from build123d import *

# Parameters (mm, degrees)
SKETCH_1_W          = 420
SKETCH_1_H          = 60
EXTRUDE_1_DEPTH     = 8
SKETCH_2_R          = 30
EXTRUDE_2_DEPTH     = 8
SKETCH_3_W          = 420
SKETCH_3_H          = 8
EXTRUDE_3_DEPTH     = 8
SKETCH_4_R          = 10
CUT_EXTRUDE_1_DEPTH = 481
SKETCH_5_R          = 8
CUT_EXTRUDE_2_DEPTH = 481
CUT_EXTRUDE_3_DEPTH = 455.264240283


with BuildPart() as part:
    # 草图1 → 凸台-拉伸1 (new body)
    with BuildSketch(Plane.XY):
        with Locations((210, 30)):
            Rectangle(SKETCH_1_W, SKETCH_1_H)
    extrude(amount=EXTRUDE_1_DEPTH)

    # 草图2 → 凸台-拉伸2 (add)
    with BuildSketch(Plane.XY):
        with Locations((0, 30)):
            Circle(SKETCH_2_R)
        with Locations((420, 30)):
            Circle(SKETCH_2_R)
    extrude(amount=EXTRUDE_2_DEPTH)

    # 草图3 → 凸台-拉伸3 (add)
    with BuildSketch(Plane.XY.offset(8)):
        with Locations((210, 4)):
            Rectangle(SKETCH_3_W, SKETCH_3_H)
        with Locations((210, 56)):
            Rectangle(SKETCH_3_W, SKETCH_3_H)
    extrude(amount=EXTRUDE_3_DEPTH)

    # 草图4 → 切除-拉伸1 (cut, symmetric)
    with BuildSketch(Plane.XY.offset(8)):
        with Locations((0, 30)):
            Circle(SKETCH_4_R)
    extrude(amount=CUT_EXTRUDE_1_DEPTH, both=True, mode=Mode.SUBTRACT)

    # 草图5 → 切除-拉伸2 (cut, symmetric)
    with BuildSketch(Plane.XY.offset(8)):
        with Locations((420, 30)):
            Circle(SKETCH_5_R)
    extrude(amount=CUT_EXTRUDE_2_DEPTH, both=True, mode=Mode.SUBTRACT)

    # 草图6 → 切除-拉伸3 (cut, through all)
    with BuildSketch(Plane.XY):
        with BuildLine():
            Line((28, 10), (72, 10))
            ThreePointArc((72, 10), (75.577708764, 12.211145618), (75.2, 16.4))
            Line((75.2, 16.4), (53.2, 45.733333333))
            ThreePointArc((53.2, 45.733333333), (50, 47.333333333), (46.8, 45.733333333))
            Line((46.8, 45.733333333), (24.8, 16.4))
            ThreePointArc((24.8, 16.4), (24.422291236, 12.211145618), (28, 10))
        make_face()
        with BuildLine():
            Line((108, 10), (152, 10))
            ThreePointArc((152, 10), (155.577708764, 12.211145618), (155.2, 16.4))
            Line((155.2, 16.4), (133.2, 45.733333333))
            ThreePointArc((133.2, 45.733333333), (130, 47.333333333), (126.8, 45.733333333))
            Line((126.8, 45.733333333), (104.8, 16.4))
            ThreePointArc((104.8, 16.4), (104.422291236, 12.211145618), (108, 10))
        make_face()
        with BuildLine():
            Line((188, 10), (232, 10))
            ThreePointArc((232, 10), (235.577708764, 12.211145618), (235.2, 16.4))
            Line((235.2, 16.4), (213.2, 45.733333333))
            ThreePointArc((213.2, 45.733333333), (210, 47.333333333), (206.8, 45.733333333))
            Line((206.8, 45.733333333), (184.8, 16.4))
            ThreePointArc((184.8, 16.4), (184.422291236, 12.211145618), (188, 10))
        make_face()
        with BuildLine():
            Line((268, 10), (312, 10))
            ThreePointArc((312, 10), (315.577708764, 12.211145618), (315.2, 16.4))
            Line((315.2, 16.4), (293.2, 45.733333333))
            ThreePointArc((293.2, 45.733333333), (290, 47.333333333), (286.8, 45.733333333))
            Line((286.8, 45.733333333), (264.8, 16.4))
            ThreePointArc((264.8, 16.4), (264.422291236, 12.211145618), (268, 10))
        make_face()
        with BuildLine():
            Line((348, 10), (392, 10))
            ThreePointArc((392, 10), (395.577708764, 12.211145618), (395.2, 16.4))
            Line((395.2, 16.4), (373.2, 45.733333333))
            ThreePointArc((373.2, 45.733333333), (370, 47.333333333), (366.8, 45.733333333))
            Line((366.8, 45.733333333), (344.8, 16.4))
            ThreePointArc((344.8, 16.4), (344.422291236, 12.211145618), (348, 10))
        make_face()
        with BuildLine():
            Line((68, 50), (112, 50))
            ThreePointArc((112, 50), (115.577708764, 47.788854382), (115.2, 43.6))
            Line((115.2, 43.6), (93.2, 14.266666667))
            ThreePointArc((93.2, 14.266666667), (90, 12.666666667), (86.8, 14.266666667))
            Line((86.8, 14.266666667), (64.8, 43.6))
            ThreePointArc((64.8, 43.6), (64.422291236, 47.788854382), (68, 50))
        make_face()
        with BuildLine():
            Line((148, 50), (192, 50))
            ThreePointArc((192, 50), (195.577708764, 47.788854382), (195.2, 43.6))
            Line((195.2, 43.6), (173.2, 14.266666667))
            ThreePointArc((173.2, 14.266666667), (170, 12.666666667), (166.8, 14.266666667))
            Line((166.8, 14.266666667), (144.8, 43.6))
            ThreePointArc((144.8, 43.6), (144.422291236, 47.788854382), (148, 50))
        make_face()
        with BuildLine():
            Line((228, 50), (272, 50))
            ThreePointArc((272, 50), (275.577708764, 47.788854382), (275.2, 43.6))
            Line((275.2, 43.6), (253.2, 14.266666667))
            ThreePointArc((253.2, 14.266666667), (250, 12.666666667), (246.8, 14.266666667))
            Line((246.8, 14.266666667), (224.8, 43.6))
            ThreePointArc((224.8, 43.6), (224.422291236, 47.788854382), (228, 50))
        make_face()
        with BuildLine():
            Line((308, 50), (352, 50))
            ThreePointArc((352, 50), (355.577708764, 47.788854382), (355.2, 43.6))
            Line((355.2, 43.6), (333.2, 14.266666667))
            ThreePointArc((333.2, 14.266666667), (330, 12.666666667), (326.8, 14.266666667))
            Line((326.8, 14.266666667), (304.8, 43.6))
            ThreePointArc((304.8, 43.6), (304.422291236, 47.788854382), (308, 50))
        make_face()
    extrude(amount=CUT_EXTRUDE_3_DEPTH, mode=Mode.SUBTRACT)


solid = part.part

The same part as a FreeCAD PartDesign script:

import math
import FreeCAD as App
import Part
import Sketcher


def add_polygon(sketch, points):
    """Adds a closed chain of lines whose ends are joined by coincident constraints."""
    first, n = sketch.GeometryCount, len(points)
    for a, b in zip(points, points[1:] + points[:1]):
        sketch.addGeometry(Part.LineSegment(App.Vector(*a, 0), App.Vector(*b, 0)), False)
    for i in range(n):
        sketch.addConstraint(Sketcher.Constraint("Coincident", first + i, 2, first + (i + 1) % n, 1))

doc = App.newDocument("Part")
params = doc.addObject("Spreadsheet::Sheet", "Params")
for row, (alias, value) in enumerate([
    ("sketch1_width", "420 mm"),
    ("sketch1_height", "60 mm"),
    ("pad1_length", "8 mm"),
    ("sketch2_diameter", "60 mm"),
    ("pad2_length", "8 mm"),
    ("sketch3_width", "420 mm"),
    ("sketch3_height", "8 mm"),
    ("pad3_length", "8 mm"),
    ("sketch4_diameter", "20 mm"),
    ("pocket1_length", "962 mm"),
    ("sketch5_diameter", "16 mm"),
    ("pocket2_length", "962 mm"),
    ("sketch6_radius", "4 mm"),
    ("sketch6_width", "44 mm"),
], start=1):
    params.set(f"A{row}", alias)
    params.set(f"B{row}", "=" + value)
    params.setAlias(f"B{row}", alias)

body = doc.addObject("PartDesign::Body", "Body")

# Sketch on XY plane
sketch1 = body.newObject("Sketcher::SketchObject", "Sketch")
sketch1.AttachmentSupport = (doc.getObject("XY_Plane"), [""])
sketch1.MapMode = "FlatFace"
add_polygon(sketch1, [(0, 60), (0, 0), (420, 0), (420, 60)])  # lines 0-3
sketch1.addConstraint([
    Sketcher.Constraint("Vertical", 0),
    Sketcher.Constraint("Horizontal", 1),
    Sketcher.Constraint("Vertical", 2),
    Sketcher.Constraint("Horizontal", 3),
    Sketcher.Constraint("Coincident", 0, 2, -1, 1),
    Sketcher.Constraint("DistanceX", 1, 1, 1, 2, 420.0),
    Sketcher.Constraint("DistanceY", 0, 2, 0, 1, 60.0),
])
sketch1.setExpression("Constraints[9]", "Params.sketch1_width")
sketch1.setExpression("Constraints[10]", "Params.sketch1_height")
pad1 = body.newObject("PartDesign::Pad", "Pad")
pad1.Profile = sketch1
pad1.setExpression("Length", "Params.pad1_length")

# Sketch on XY plane
sketch2 = body.newObject("Sketcher::SketchObject", "Sketch001")
sketch2.AttachmentSupport = (doc.getObject("XY_Plane"), [""])
sketch2.MapMode = "FlatFace"
sketch2.addGeometry([
    Part.Circle(App.Vector(0, 30, 0), App.Vector(0, 0, 1), 30),
    Part.Circle(App.Vector(420, 30, 0), App.Vector(0, 0, 1), 30),
], False)
sketch2.addConstraint([
    Sketcher.Constraint("Equal", 0, 1),
    Sketcher.Constraint("PointOnObject", 0, 3, -2),
    Sketcher.Constraint("Horizontal", 0, 3, 1, 3),
    Sketcher.Constraint("Diameter", 0, 60.0),
    Sketcher.Constraint("DistanceY", -1, 1, 0, 3, 30.0),
    Sketcher.Constraint("DistanceX", -1, 1, 1, 3, 420.0),
])
sketch2.setExpression("Constraints[3]", "Params.sketch2_diameter")
pad2 = body.newObject("PartDesign::Pad", "Pad001")
pad2.Profile = sketch2
pad2.setExpression("Length", "Params.pad2_length")

# Sketch on XY plane
sketch3 = body.newObject("Sketcher::SketchObject", "Sketch002")
sketch3.AttachmentSupport = (doc.getObject("XY_Plane"), [""])
sketch3.MapMode = "FlatFace"
sketch3.AttachmentOffset = App.Placement(App.Vector(0, 0, 8), App.Rotation())
add_polygon(sketch3, [(0, 8), (0, 0), (420, 0), (420, 8)])  # lines 0-3
add_polygon(sketch3, [(0, 60), (0, 52), (420, 52), (420, 60)])  # lines 4-7
sketch3.addConstraint([
    Sketcher.Constraint("Vertical", 0),
    Sketcher.Constraint("Horizontal", 1),
    Sketcher.Constraint("Vertical", 2),
    Sketcher.Constraint("Horizontal", 3),
    Sketcher.Constraint("Vertical", 4),
    Sketcher.Constraint("Horizontal", 5),
    Sketcher.Constraint("Vertical", 6),
    Sketcher.Constraint("Horizontal", 7),
    Sketcher.Constraint("Coincident", 0, 2, -1, 1),
    Sketcher.Constraint("PointOnObject", 4, 2, -2),
    Sketcher.Constraint("Vertical", 2, 2, 5, 2),
    Sketcher.Constraint("Equal", 2, 4),
    Sketcher.Constraint("DistanceX", 1, 1, 1, 2, 420.0),
    Sketcher.Constraint("DistanceY", 0, 2, 0, 1, 8.0),
    Sketcher.Constraint("DistanceY", -1, 1, 4, 2, 52.0),
])
sketch3.setExpression("Constraints[20]", "Params.sketch3_width")
sketch3.setExpression("Constraints[21]", "Params.sketch3_height")
pad3 = body.newObject("PartDesign::Pad", "Pad002")
pad3.Profile = sketch3
pad3.setExpression("Length", "Params.pad3_length")

# Sketch on XY plane
sketch4 = body.newObject("Sketcher::SketchObject", "Sketch003")
sketch4.AttachmentSupport = (doc.getObject("XY_Plane"), [""])
sketch4.MapMode = "FlatFace"
sketch4.AttachmentOffset = App.Placement(App.Vector(0, 0, 8), App.Rotation())
sketch4.addGeometry(Part.Circle(App.Vector(0, 30, 0), App.Vector(0, 0, 1), 10), False)
sketch4.addConstraint([
    Sketcher.Constraint("PointOnObject", 0, 3, -2),
    Sketcher.Constraint("Diameter", 0, 20.0),
    Sketcher.Constraint("DistanceY", -1, 1, 0, 3, 30.0),
])
sketch4.setExpression("Constraints[1]", "Params.sketch4_diameter")
pocket1 = body.newObject("PartDesign::Pocket", "Pocket")
pocket1.Profile = sketch4
pocket1.setExpression("Length", "Params.pocket1_length")
pocket1.Midplane = True

# Sketch on XY plane
sketch5 = body.newObject("Sketcher::SketchObject", "Sketch004")
sketch5.AttachmentSupport = (doc.getObject("XY_Plane"), [""])
sketch5.MapMode = "FlatFace"
sketch5.AttachmentOffset = App.Placement(App.Vector(0, 0, 8), App.Rotation())
sketch5.addGeometry(Part.Circle(App.Vector(420, 30, 0), App.Vector(0, 0, 1), 8), False)
sketch5.addConstraint([
    Sketcher.Constraint("Diameter", 0, 16.0),
    Sketcher.Constraint("DistanceX", -1, 1, 0, 3, 420.0),
    Sketcher.Constraint("DistanceY", -1, 1, 0, 3, 30.0),
])
sketch5.setExpression("Constraints[0]", "Params.sketch5_diameter")
pocket2 = body.newObject("PartDesign::Pocket", "Pocket001")
pocket2.Profile = sketch5
pocket2.setExpression("Length", "Params.pocket2_length")
pocket2.Midplane = True

# Sketch on XY plane
sketch6 = body.newObject("Sketcher::SketchObject", "Sketch005")
sketch6.AttachmentSupport = (doc.getObject("XY_Plane"), [""])
sketch6.MapMode = "FlatFace"
sketch6.addGeometry([
    Part.LineSegment(App.Vector(28, 10, 0), App.Vector(72, 10, 0)),  # 0
    Part.ArcOfCircle(Part.Circle(App.Vector(72, 14, 0), App.Vector(0, 0, 1), 4), math.radians(-90), math.radians(36.869898)),  # 1
    Part.LineSegment(App.Vector(75.2, 16.4, 0), App.Vector(53.2, 45.733333, 0)),  # 2
    Part.ArcOfCircle(Part.Circle(App.Vector(50, 43.333333, 0), App.Vector(0, 0, 1), 4), math.radians(36.869898), math.radians(143.130102)),  # 3
    Part.LineSegment(App.Vector(46.8, 45.733333, 0), App.Vector(24.8, 16.4, 0)),  # 4
    Part.ArcOfCircle(Part.Circle(App.Vector(28, 14, 0), App.Vector(0, 0, 1), 4), math.radians(143.130102), math.radians(270)),  # 5
    Part.LineSegment(App.Vector(108, 10, 0), App.Vector(152, 10, 0)),  # 6
    Part.ArcOfCircle(Part.Circle(App.Vector(152, 14, 0), App.Vector(0, 0, 1), 4), math.radians(-90), math.radians(36.869898)),  # 7
    Part.LineSegment(App.Vector(155.2, 16.4, 0), App.Vector(133.2, 45.733333, 0)),  # 8
    Part.ArcOfCircle(Part.Circle(App.Vector(130, 43.333333, 0), App.Vector(0, 0, 1), 4), math.radians(36.869898), math.radians(143.130102)),  # 9
    Part.LineSegment(App.Vector(126.8, 45.733333, 0), App.Vector(104.8, 16.4, 0)),  # 10
    Part.ArcOfCircle(Part.Circle(App.Vector(108, 14, 0), App.Vector(0, 0, 1), 4), math.radians(143.130102), math.radians(270)),  # 11
    Part.LineSegment(App.Vector(188, 10, 0), App.Vector(232, 10, 0)),  # 12
    Part.ArcOfCircle(Part.Circle(App.Vector(232, 14, 0), App.Vector(0, 0, 1), 4), math.radians(-90), math.radians(36.869898)),  # 13
    Part.LineSegment(App.Vector(235.2, 16.4, 0), App.Vector(213.2, 45.733333, 0)),  # 14
    Part.ArcOfCircle(Part.Circle(App.Vector(210, 43.333333, 0), App.Vector(0, 0, 1), 4), math.radians(36.869898), math.radians(143.130102)),  # 15
    Part.LineSegment(App.Vector(206.8, 45.733333, 0), App.Vector(184.8, 16.4, 0)),  # 16
    Part.ArcOfCircle(Part.Circle(App.Vector(188, 14, 0), App.Vector(0, 0, 1), 4), math.radians(143.130102), math.radians(270)),  # 17
    Part.LineSegment(App.Vector(268, 10, 0), App.Vector(312, 10, 0)),  # 18
    Part.ArcOfCircle(Part.Circle(App.Vector(312, 14, 0), App.Vector(0, 0, 1), 4), math.radians(-90), math.radians(36.869898)),  # 19
    Part.LineSegment(App.Vector(315.2, 16.4, 0), App.Vector(293.2, 45.733333, 0)),  # 20
    Part.ArcOfCircle(Part.Circle(App.Vector(290, 43.333333, 0), App.Vector(0, 0, 1), 4), math.radians(36.869898), math.radians(143.130102)),  # 21
    Part.LineSegment(App.Vector(286.8, 45.733333, 0), App.Vector(264.8, 16.4, 0)),  # 22
    Part.ArcOfCircle(Part.Circle(App.Vector(268, 14, 0), App.Vector(0, 0, 1), 4), math.radians(143.130102), math.radians(270)),  # 23
    Part.LineSegment(App.Vector(348, 10, 0), App.Vector(392, 10, 0)),  # 24
    Part.ArcOfCircle(Part.Circle(App.Vector(392, 14, 0), App.Vector(0, 0, 1), 4), math.radians(-90), math.radians(36.869898)),  # 25
    Part.LineSegment(App.Vector(395.2, 16.4, 0), App.Vector(373.2, 45.733333, 0)),  # 26
    Part.ArcOfCircle(Part.Circle(App.Vector(370, 43.333333, 0), App.Vector(0, 0, 1), 4), math.radians(36.869898), math.radians(143.130102)),  # 27
    Part.LineSegment(App.Vector(366.8, 45.733333, 0), App.Vector(344.8, 16.4, 0)),  # 28
    Part.ArcOfCircle(Part.Circle(App.Vector(348, 14, 0), App.Vector(0, 0, 1), 4), math.radians(143.130102), math.radians(270)),  # 29
    Part.LineSegment(App.Vector(112, 50, 0), App.Vector(68, 50, 0)),  # 30
    Part.ArcOfCircle(Part.Circle(App.Vector(68, 46, 0), App.Vector(0, 0, 1), 4), math.radians(90), math.radians(216.869898)),  # 31
    Part.LineSegment(App.Vector(64.8, 43.6, 0), App.Vector(86.8, 14.266667, 0)),  # 32
    Part.ArcOfCircle(Part.Circle(App.Vector(90, 16.666667, 0), App.Vector(0, 0, 1), 4), math.radians(-143.130102), math.radians(-36.869898)),  # 33
    Part.LineSegment(App.Vector(93.2, 14.266667, 0), App.Vector(115.2, 43.6, 0)),  # 34
    Part.ArcOfCircle(Part.Circle(App.Vector(112, 46, 0), App.Vector(0, 0, 1), 4), math.radians(-36.869898), math.radians(90)),  # 35
    Part.LineSegment(App.Vector(192, 50, 0), App.Vector(148, 50, 0)),  # 36
    Part.ArcOfCircle(Part.Circle(App.Vector(148, 46, 0), App.Vector(0, 0, 1), 4), math.radians(90), math.radians(216.869898)),  # 37
    Part.LineSegment(App.Vector(144.8, 43.6, 0), App.Vector(166.8, 14.266667, 0)),  # 38
    Part.ArcOfCircle(Part.Circle(App.Vector(170, 16.666667, 0), App.Vector(0, 0, 1), 4), math.radians(-143.130102), math.radians(-36.869898)),  # 39
    Part.LineSegment(App.Vector(173.2, 14.266667, 0), App.Vector(195.2, 43.6, 0)),  # 40
    Part.ArcOfCircle(Part.Circle(App.Vector(192, 46, 0), App.Vector(0, 0, 1), 4), math.radians(-36.869898), math.radians(90)),  # 41
    Part.LineSegment(App.Vector(272, 50, 0), App.Vector(228, 50, 0)),  # 42
    Part.ArcOfCircle(Part.Circle(App.Vector(228, 46, 0), App.Vector(0, 0, 1), 4), math.radians(90), math.radians(216.869898)),  # 43
    Part.LineSegment(App.Vector(224.8, 43.6, 0), App.Vector(246.8, 14.266667, 0)),  # 44
    Part.ArcOfCircle(Part.Circle(App.Vector(250, 16.666667, 0), App.Vector(0, 0, 1), 4), math.radians(-143.130102), math.radians(-36.869898)),  # 45
    Part.LineSegment(App.Vector(253.2, 14.266667, 0), App.Vector(275.2, 43.6, 0)),  # 46
    Part.ArcOfCircle(Part.Circle(App.Vector(272, 46, 0), App.Vector(0, 0, 1), 4), math.radians(-36.869898), math.radians(90)),  # 47
    Part.LineSegment(App.Vector(352, 50, 0), App.Vector(308, 50, 0)),  # 48
    Part.ArcOfCircle(Part.Circle(App.Vector(308, 46, 0), App.Vector(0, 0, 1), 4), math.radians(90), math.radians(216.869898)),  # 49
    Part.LineSegment(App.Vector(304.8, 43.6, 0), App.Vector(326.8, 14.266667, 0)),  # 50
    Part.ArcOfCircle(Part.Circle(App.Vector(330, 16.666667, 0), App.Vector(0, 0, 1), 4), math.radians(-143.130102), math.radians(-36.869898)),  # 51
    Part.LineSegment(App.Vector(333.2, 14.266667, 0), App.Vector(355.2, 43.6, 0)),  # 52
    Part.ArcOfCircle(Part.Circle(App.Vector(352, 46, 0), App.Vector(0, 0, 1), 4), math.radians(-36.869898), math.radians(90)),  # 53
], False)
sketch6.addConstraint([
    Sketcher.Constraint("Tangent", 0, 2, 1, 1),
    Sketcher.Constraint("Tangent", 1, 2, 2, 1),
    Sketcher.Constraint("Tangent", 2, 2, 3, 1),
    Sketcher.Constraint("Tangent", 3, 2, 4, 1),
    Sketcher.Constraint("Tangent", 4, 2, 5, 1),
    Sketcher.Constraint("Tangent", 5, 2, 0, 1),
    Sketcher.Constraint("Tangent", 6, 2, 7, 1),
    Sketcher.Constraint("Tangent", 7, 2, 8, 1),
    Sketcher.Constraint("Tangent", 8, 2, 9, 1),
    Sketcher.Constraint("Tangent", 9, 2, 10, 1),
    Sketcher.Constraint("Tangent", 10, 2, 11, 1),
    Sketcher.Constraint("Tangent", 11, 2, 6, 1),
    Sketcher.Constraint("Tangent", 12, 2, 13, 1),
    Sketcher.Constraint("Tangent", 13, 2, 14, 1),
    Sketcher.Constraint("Tangent", 14, 2, 15, 1),
    Sketcher.Constraint("Tangent", 15, 2, 16, 1),
    Sketcher.Constraint("Tangent", 16, 2, 17, 1),
    Sketcher.Constraint("Tangent", 17, 2, 12, 1),
    Sketcher.Constraint("Tangent", 18, 2, 19, 1),
    Sketcher.Constraint("Tangent", 19, 2, 20, 1),
    Sketcher.Constraint("Tangent", 20, 2, 21, 1),
    Sketcher.Constraint("Tangent", 21, 2, 22, 1),
    Sketcher.Constraint("Tangent", 22, 2, 23, 1),
    Sketcher.Constraint("Tangent", 23, 2, 18, 1),
    Sketcher.Constraint("Tangent", 24, 2, 25, 1),
    Sketcher.Constraint("Tangent", 25, 2, 26, 1),
    Sketcher.Constraint("Tangent", 26, 2, 27, 1),
    Sketcher.Constraint("Tangent", 27, 2, 28, 1),
    Sketcher.Constraint("Tangent", 28, 2, 29, 1),
    Sketcher.Constraint("Tangent", 29, 2, 24, 1),
    Sketcher.Constraint("Tangent", 30, 2, 31, 1),
    Sketcher.Constraint("Tangent", 31, 2, 32, 1),
    Sketcher.Constraint("Tangent", 32, 2, 33, 1),
    Sketcher.Constraint("Tangent", 33, 2, 34, 1),
    Sketcher.Constraint("Tangent", 34, 2, 35, 1),
    Sketcher.Constraint("Tangent", 35, 2, 30, 1),
    Sketcher.Constraint("Tangent", 36, 2, 37, 1),
    Sketcher.Constraint("Tangent", 37, 2, 38, 1),
    Sketcher.Constraint("Tangent", 38, 2, 39, 1),
    Sketcher.Constraint("Tangent", 39, 2, 40, 1),
    Sketcher.Constraint("Tangent", 40, 2, 41, 1),
    Sketcher.Constraint("Tangent", 41, 2, 36, 1),
    Sketcher.Constraint("Tangent", 42, 2, 43, 1),
    Sketcher.Constraint("Tangent", 43, 2, 44, 1),
    Sketcher.Constraint("Tangent", 44, 2, 45, 1),
    Sketcher.Constraint("Tangent", 45, 2, 46, 1),
    Sketcher.Constraint("Tangent", 46, 2, 47, 1),
    Sketcher.Constraint("Tangent", 47, 2, 42, 1),
    Sketcher.Constraint("Tangent", 48, 2, 49, 1),
    Sketcher.Constraint("Tangent", 49, 2, 50, 1),
    Sketcher.Constraint("Tangent", 50, 2, 51, 1),
    Sketcher.Constraint("Tangent", 51, 2, 52, 1),
    Sketcher.Constraint("Tangent", 52, 2, 53, 1),
    Sketcher.Constraint("Tangent", 53, 2, 48, 1),
    Sketcher.Constraint("Horizontal", 0),
    Sketcher.Constraint("Horizontal", 6),
    Sketcher.Constraint("Horizontal", 12),
    Sketcher.Constraint("Horizontal", 18),
    Sketcher.Constraint("Horizontal", 24),
    Sketcher.Constraint("Horizontal", 30),
    Sketcher.Constraint("Horizontal", 36),
    Sketcher.Constraint("Horizontal", 42),
    Sketcher.Constraint("Horizontal", 48),
    Sketcher.Constraint("Equal", 1, 3),
    Sketcher.Constraint("Equal", 3, 5),
    Sketcher.Constraint("Equal", 5, 7),
    Sketcher.Constraint("Equal", 7, 9),
    Sketcher.Constraint("Equal", 9, 11),
    Sketcher.Constraint("Equal", 11, 13),
    Sketcher.Constraint("Equal", 13, 15),
    Sketcher.Constraint("Equal", 15, 17),
    Sketcher.Constraint("Equal", 17, 19),
    Sketcher.Constraint("Equal", 19, 21),
    Sketcher.Constraint("Equal", 21, 23),
    Sketcher.Constraint("Equal", 23, 25),
    Sketcher.Constraint("Equal", 25, 27),
    Sketcher.Constraint("Equal", 27, 29),
    Sketcher.Constraint("Equal", 29, 31),
    Sketcher.Constraint("Equal", 31, 33),
    Sketcher.Constraint("Equal", 33, 35),
    Sketcher.Constraint("Equal", 35, 37),
    Sketcher.Constraint("Equal", 37, 39),
    Sketcher.Constraint("Equal", 39, 41),
    Sketcher.Constraint("Equal", 41, 43),
    Sketcher.Constraint("Equal", 43, 45),
    Sketcher.Constraint("Equal", 45, 47),
    Sketcher.Constraint("Equal", 47, 49),
    Sketcher.Constraint("Equal", 49, 51),
    Sketcher.Constraint("Equal", 51, 53),
    Sketcher.Constraint("Parallel", 2, 8),
    Sketcher.Constraint("Parallel", 4, 10),
    Sketcher.Constraint("Parallel", 8, 14),
    Sketcher.Constraint("Parallel", 10, 16),
    Sketcher.Constraint("Parallel", 14, 20),
    Sketcher.Constraint("Parallel", 16, 22),
    Sketcher.Constraint("Parallel", 20, 26),
    Sketcher.Constraint("Parallel", 22, 28),
    Sketcher.Constraint("Parallel", 26, 32),
    Sketcher.Constraint("Parallel", 28, 34),
    Sketcher.Constraint("Parallel", 32, 38),
    Sketcher.Constraint("Parallel", 34, 40),
    Sketcher.Constraint("Parallel", 38, 44),
    Sketcher.Constraint("Parallel", 40, 46),
    Sketcher.Constraint("Parallel", 44, 50),
    Sketcher.Constraint("Parallel", 46, 52),
    Sketcher.Constraint("Horizontal", 5, 3, 7, 3),
    Sketcher.Constraint("Horizontal", 3, 3, 9, 3),
    Sketcher.Constraint("Horizontal", 11, 3, 13, 3),
    Sketcher.Constraint("Horizontal", 9, 3, 15, 3),
    Sketcher.Constraint("Horizontal", 17, 3, 19, 3),
    Sketcher.Constraint("Horizontal", 15, 3, 21, 3),
    Sketcher.Constraint("Horizontal", 23, 3, 25, 3),
    Sketcher.Constraint("Horizontal", 21, 3, 27, 3),
    Sketcher.Constraint("Horizontal", 35, 3, 37, 3),
    Sketcher.Constraint("Horizontal", 33, 3, 39, 3),
    Sketcher.Constraint("Horizontal", 41, 3, 43, 3),
    Sketcher.Constraint("Horizontal", 39, 3, 45, 3),
    Sketcher.Constraint("Horizontal", 47, 3, 49, 3),
    Sketcher.Constraint("Horizontal", 45, 3, 51, 3),
    Sketcher.Constraint("Horizontal", 2, 2, 3, 2),
    Sketcher.Constraint("Equal", 24, 30),
    Sketcher.Constraint("Radius", 1, 4.0),
    Sketcher.Constraint("DistanceX", 0, 1, 0, 2, 44.0),
    Sketcher.Constraint("DistanceX", -1, 1, 1, 3, 72.0),
    Sketcher.Constraint("DistanceY", -1, 1, 1, 3, 14.0),
    Sketcher.Constraint("DistanceX", -1, 1, 7, 3, 152.0),
    Sketcher.Constraint("DistanceX", -1, 1, 13, 3, 232.0),
    Sketcher.Constraint("DistanceX", -1, 1, 19, 3, 312.0),
    Sketcher.Constraint("DistanceX", -1, 1, 25, 3, 392.0),
    Sketcher.Constraint("DistanceX", -1, 1, 31, 3, 68.0),
    Sketcher.Constraint("DistanceY", -1, 1, 31, 3, 46.0),
    Sketcher.Constraint("DistanceX", -1, 1, 37, 3, 148.0),
    Sketcher.Constraint("DistanceX", -1, 1, 43, 3, 228.0),
    Sketcher.Constraint("DistanceX", -1, 1, 49, 3, 308.0),
    Sketcher.Constraint("DistanceX", -1, 1, 1, 2, 75.2),
])
sketch6.setExpression("Constraints[121]", "Params.sketch6_radius")
sketch6.setExpression("Constraints[122]", "Params.sketch6_width")
pocket3 = body.newObject("PartDesign::Pocket", "Pocket002")
pocket3.Profile = sketch6
pocket3.Type = "ThroughAll"
pocket3.Reversed = True

doc.recompute()
